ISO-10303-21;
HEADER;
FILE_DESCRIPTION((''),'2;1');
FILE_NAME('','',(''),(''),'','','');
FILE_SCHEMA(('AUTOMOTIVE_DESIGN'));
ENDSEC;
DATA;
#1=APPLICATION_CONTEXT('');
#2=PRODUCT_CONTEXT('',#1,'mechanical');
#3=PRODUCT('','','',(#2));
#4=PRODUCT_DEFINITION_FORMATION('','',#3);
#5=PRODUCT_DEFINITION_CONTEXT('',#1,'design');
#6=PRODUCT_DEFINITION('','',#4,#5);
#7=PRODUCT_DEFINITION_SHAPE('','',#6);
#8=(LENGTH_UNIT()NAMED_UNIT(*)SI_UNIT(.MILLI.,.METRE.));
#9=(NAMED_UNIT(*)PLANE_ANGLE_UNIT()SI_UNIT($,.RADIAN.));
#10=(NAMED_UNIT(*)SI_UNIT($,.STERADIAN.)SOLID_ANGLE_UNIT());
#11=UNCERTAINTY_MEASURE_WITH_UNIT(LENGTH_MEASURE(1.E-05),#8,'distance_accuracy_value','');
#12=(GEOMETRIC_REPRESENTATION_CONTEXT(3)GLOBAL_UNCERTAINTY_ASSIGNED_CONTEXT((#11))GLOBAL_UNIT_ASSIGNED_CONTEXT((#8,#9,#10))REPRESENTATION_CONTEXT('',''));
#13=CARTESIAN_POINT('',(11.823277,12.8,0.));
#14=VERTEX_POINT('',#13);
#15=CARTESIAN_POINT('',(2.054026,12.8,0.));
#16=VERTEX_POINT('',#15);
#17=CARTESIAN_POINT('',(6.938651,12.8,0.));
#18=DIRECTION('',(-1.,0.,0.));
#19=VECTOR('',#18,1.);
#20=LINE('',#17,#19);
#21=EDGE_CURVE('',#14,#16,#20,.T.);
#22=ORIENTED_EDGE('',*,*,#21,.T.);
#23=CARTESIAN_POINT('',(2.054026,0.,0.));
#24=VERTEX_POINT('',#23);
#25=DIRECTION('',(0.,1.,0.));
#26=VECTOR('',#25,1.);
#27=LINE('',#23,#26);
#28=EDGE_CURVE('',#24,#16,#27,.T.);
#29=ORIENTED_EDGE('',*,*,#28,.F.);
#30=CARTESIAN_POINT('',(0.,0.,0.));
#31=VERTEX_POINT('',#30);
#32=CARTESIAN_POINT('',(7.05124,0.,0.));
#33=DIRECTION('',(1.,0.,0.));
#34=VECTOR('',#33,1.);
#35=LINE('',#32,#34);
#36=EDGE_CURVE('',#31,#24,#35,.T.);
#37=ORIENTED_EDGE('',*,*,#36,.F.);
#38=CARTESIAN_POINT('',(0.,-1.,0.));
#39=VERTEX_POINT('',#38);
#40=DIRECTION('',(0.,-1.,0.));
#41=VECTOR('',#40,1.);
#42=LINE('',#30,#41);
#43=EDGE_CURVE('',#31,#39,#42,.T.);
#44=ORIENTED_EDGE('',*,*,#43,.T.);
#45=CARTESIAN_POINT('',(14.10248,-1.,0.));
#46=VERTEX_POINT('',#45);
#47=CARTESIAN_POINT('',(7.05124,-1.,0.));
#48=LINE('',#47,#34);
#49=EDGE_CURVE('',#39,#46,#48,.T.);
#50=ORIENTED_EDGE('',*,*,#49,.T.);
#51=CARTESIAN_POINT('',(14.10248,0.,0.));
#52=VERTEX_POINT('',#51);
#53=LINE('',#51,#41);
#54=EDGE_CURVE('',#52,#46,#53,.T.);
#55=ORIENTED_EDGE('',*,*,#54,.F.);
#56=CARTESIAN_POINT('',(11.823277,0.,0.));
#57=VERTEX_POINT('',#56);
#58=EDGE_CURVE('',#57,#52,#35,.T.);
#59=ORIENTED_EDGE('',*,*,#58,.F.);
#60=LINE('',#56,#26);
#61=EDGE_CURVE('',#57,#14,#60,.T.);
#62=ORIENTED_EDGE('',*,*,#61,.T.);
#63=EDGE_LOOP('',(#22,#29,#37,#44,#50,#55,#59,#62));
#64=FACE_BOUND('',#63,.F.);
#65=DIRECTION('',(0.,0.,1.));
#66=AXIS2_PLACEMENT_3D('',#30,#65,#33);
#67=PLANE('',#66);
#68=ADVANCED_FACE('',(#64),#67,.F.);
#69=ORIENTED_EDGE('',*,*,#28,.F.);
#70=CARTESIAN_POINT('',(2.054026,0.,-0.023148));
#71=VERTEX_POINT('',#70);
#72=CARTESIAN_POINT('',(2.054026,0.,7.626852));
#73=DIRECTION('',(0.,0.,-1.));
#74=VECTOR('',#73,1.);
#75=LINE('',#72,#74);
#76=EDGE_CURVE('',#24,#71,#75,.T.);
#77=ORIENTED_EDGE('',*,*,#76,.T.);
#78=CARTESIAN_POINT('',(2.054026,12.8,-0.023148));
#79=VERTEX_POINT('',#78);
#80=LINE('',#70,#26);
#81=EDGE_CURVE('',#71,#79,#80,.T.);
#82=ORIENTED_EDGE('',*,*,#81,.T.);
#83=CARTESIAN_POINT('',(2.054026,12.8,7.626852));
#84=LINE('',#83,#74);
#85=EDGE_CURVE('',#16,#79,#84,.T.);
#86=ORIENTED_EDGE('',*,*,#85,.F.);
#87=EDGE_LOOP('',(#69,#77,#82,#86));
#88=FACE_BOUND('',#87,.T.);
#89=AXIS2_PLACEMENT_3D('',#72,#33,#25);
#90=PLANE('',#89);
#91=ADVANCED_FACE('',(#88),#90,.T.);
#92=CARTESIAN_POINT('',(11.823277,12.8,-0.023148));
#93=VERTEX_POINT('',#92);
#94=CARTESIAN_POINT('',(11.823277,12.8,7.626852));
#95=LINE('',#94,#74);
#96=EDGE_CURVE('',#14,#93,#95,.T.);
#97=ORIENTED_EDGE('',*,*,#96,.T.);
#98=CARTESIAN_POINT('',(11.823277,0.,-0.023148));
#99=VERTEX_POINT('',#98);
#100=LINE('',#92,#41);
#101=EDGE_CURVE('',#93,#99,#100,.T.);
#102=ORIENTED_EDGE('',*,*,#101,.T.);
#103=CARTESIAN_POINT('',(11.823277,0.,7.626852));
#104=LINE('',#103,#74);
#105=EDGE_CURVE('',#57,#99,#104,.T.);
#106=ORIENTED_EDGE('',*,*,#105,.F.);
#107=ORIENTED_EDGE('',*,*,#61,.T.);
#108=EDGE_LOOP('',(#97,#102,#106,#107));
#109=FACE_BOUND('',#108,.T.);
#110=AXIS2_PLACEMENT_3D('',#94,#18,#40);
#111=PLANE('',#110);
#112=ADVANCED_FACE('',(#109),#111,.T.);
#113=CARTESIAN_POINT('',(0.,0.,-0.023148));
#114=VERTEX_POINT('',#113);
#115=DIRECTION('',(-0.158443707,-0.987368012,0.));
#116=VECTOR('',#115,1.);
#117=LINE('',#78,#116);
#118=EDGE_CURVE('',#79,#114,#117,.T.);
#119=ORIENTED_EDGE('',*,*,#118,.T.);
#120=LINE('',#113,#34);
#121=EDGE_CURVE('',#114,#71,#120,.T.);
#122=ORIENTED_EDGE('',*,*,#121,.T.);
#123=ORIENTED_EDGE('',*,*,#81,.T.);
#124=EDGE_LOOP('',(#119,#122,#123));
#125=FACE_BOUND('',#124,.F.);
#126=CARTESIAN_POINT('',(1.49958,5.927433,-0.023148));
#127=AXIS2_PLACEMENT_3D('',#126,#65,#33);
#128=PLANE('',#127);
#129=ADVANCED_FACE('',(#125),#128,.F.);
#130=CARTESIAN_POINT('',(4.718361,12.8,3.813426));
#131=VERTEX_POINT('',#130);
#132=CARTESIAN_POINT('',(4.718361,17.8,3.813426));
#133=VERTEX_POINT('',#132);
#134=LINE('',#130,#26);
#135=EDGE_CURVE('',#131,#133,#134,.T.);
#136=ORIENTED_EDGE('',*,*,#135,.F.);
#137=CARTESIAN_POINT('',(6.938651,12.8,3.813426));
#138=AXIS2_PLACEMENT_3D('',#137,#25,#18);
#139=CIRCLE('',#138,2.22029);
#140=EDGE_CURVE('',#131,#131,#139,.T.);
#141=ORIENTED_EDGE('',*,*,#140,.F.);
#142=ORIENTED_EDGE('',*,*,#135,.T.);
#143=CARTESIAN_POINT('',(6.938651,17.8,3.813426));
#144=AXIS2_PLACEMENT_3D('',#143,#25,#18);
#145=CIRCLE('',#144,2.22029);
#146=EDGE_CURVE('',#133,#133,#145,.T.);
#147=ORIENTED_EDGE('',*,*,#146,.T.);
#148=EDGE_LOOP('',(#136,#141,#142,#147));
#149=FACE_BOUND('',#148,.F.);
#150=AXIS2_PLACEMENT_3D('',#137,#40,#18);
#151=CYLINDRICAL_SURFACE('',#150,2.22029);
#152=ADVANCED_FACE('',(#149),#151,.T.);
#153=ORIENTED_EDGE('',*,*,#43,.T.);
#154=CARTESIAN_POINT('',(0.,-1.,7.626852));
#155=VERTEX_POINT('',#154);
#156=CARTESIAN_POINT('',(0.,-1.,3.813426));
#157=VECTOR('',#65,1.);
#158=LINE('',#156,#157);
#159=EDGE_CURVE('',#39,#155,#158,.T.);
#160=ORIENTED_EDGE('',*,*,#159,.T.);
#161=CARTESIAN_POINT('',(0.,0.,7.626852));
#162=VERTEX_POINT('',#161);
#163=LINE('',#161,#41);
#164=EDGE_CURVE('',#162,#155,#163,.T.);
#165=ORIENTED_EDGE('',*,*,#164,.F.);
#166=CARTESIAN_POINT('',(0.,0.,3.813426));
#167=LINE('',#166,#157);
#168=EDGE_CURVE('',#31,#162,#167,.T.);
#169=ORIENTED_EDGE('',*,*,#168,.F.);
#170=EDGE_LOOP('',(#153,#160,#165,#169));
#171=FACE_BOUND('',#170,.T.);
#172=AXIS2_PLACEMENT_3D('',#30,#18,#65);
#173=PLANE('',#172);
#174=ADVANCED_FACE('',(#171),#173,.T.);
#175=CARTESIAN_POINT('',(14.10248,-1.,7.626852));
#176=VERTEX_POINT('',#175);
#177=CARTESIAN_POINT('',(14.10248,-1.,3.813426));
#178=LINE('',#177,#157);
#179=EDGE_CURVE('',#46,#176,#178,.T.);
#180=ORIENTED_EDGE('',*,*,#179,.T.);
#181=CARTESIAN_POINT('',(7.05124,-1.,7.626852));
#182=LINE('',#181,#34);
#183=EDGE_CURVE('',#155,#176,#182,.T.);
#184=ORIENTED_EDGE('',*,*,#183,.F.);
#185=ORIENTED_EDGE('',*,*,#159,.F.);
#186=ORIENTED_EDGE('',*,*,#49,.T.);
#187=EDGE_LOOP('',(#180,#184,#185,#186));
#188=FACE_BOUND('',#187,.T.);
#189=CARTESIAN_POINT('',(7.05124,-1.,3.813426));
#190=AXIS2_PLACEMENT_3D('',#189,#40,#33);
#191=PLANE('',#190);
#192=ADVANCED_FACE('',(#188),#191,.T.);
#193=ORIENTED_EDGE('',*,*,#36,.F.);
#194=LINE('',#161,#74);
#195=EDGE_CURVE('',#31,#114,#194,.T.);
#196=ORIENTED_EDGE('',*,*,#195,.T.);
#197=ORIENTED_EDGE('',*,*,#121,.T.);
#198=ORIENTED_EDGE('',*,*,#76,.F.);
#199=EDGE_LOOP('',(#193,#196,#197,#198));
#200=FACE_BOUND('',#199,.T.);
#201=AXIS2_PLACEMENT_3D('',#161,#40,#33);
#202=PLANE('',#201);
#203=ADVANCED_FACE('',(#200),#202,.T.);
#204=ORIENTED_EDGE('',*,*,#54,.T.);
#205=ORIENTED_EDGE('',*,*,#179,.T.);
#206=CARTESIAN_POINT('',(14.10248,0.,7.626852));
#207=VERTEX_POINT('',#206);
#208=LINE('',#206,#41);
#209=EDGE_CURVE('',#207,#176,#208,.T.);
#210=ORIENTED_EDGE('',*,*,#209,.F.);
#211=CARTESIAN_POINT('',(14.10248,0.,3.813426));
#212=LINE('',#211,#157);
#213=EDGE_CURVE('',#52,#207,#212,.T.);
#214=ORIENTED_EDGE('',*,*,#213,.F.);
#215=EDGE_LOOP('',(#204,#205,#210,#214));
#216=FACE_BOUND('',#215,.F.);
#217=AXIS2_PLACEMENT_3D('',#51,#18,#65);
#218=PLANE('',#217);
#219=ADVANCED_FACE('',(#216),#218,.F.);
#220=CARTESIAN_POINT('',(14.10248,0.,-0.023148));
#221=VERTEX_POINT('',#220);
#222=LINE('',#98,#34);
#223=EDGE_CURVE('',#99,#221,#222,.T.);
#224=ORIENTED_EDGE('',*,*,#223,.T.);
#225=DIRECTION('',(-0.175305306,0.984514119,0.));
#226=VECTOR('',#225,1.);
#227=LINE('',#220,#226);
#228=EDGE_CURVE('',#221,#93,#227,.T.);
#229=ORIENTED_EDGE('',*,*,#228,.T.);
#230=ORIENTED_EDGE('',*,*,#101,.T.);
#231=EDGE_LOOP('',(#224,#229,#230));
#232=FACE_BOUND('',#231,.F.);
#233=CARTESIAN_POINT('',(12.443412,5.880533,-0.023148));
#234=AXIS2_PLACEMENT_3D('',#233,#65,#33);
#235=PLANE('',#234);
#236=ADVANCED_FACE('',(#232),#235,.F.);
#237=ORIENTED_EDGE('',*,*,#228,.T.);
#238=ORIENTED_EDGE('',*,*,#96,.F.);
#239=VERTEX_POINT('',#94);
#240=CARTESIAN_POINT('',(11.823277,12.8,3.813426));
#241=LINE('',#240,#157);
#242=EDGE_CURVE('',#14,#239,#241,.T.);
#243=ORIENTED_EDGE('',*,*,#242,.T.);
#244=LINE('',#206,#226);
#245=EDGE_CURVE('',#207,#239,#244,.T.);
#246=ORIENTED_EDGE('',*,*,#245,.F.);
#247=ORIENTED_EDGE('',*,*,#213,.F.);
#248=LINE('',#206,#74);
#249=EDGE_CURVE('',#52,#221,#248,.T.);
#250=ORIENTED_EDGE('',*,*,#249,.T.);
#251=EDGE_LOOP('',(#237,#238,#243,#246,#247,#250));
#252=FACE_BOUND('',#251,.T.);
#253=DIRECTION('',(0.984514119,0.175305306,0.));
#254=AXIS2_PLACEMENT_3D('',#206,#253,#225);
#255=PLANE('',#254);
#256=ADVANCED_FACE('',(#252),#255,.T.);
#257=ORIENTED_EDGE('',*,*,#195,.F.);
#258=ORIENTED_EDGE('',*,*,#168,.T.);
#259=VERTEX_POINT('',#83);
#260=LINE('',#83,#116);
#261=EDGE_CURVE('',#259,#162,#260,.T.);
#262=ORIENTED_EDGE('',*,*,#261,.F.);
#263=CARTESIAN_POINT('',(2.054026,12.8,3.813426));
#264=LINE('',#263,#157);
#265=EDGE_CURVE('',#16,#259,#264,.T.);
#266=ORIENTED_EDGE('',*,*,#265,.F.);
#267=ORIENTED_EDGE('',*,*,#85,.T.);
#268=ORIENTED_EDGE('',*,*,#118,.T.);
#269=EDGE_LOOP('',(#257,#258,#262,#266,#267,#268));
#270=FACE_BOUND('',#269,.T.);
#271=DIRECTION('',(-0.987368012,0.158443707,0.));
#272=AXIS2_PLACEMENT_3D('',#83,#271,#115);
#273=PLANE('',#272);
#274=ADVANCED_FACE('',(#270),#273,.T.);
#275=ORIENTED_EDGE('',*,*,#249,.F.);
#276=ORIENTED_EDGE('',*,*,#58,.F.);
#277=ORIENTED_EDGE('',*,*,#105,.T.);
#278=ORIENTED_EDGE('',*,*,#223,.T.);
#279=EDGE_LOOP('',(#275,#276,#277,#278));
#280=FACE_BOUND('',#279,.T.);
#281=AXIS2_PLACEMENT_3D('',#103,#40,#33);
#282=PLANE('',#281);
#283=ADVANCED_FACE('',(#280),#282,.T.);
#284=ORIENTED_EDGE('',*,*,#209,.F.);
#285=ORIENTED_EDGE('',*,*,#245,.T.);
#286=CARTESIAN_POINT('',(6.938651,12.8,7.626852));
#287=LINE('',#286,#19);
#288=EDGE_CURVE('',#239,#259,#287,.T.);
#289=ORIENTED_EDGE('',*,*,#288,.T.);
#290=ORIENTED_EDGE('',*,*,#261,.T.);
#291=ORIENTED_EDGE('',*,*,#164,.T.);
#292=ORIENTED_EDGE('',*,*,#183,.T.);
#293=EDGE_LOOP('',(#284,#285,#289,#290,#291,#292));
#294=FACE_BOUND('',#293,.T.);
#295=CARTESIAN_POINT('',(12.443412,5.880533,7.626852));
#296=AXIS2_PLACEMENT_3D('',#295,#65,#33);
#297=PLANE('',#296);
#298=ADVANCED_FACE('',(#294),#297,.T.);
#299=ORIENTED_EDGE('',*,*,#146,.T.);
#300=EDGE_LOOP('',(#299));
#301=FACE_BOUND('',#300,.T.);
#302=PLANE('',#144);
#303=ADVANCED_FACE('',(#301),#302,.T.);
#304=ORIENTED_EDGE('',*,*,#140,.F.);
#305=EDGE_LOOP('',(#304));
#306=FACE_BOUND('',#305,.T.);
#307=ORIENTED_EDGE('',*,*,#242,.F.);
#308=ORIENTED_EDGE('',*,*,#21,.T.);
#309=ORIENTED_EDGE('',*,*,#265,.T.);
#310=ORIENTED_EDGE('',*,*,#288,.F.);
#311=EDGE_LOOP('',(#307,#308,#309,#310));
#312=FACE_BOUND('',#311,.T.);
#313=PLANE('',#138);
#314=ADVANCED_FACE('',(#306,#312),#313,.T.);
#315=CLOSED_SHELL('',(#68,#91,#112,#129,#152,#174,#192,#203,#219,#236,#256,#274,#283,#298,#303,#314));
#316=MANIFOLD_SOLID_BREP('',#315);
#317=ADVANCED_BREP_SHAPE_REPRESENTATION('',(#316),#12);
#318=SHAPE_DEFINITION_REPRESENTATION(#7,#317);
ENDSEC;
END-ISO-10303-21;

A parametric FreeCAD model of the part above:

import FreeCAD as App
import Part
import Sketcher
Q = App.Units.Quantity


def add_polygon(sketch, points):
    """Adds a closed chain of lines whose ends are joined by coincident constraints."""
    first, n = sketch.GeometryCount, len(points)
    for a, b in zip(points, points[1:] + points[:1]):
        sketch.addGeometry(Part.LineSegment(App.Vector(*a, 0), App.Vector(*b, 0)), False)
    for i in range(n):
        sketch.addConstraint(Sketcher.Constraint("Coincident", first + i, 2, first + (i + 1) % n, 1))

doc = App.newDocument("Part")
body = doc.addObject("PartDesign::Body", "Body")

# Sketch on XZ plane
sketch1 = body.newObject("Sketcher::SketchObject", "Sketch")
sketch1.AttachmentSupport = (doc.getObject("XZ_Plane"), [""])
sketch1.MapMode = "FlatFace"
add_polygon(sketch1, [(0, 8), (0, 0), (14, 0), (14, 8)])  # lines 0-3
sketch1.addConstraint([
    Sketcher.Constraint("Vertical", 0),
    Sketcher.Constraint("Horizontal", 1),
    Sketcher.Constraint("Vertical", 2),
    Sketcher.Constraint("Horizontal", 3),
    Sketcher.Constraint("Coincident", 0, 2, -1, 1),
    Sketcher.Constraint("DistanceX", 1, 1, 1, 2, Q("14.10248 mm")),
    Sketcher.Constraint("DistanceY", 0, 2, 0, 1, Q("7.626852 mm")),
])
pad1 = body.newObject("PartDesign::Pad", "Pad")
pad1.Profile = sketch1
pad1.Length = 1

# Sketch on XZ plane
sketch2 = body.newObject("Sketcher::SketchObject", "Sketch001")
sketch2.AttachmentSupport = (doc.getObject("XZ_Plane"), [""])
sketch2.MapMode = "FlatFace"
add_polygon(sketch2, [(12, 8), (12, 0), (2, 0), (2, 8)])  # lines 0-3
sketch2.addConstraint([
    Sketcher.Constraint("Vertical", 0),
    Sketcher.Constraint("Horizontal", 1),
    Sketcher.Constraint("Vertical", 2),
    Sketcher.Constraint("Horizontal", 3),
    Sketcher.Constraint("PointOnObject", 0, 2, -1),
    Sketcher.Constraint("DistanceX", 1, 2, 1, 1, Q("9.769251 mm")),
    Sketcher.Constraint("DistanceY", 0, 2, 0, 1, Q("7.626852 mm")),
    Sketcher.Constraint("DistanceX", -1, 1, 0, 2, Q("11.823277 mm")),
])
pad2 = body.newObject("PartDesign::Pad", "Pad001")
pad2.Profile = sketch2
pad2.Length = 12.8
pad2.Reversed = True

# Sketch on XY plane
sketch3 = body.newObject("Sketcher::SketchObject", "Sketch002")
sketch3.AttachmentSupport = (doc.getObject("XY_Plane"), [""])
sketch3.MapMode = "FlatFace"
sketch3.AttachmentOffset = App.Placement(App.Vector(0, 0, 7.626852), App.Rotation())
add_polygon(sketch3, [(11.8, 0), (14.1, 0), (11.8, 12.8)])  # lines 0-2
add_polygon(sketch3, [(2.1, 0), (2.1, 12.8), (0, 0)])  # lines 3-5
sketch3.addConstraint([
    Sketcher.Constraint("Horizontal", 0),
    Sketcher.Constraint("Vertical", 2),
    Sketcher.Constraint("Vertical", 3),
    Sketcher.Constraint("Horizontal", 5),
    Sketcher.Constraint("Coincident", 4, 2, -1, 1),
    Sketcher.Constraint("PointOnObject", 0, 2, -1),
    Sketcher.Constraint("Horizontal", 1, 2, 3, 2),
    Sketcher.Constraint("DistanceY", 2, 2, 2, 1, Q("12.8 mm")),
    Sketcher.Constraint("Distance", 4, Q("12.963758 mm")),
    Sketcher.Constraint("DistanceX", 0, 1, 0, 2, Q("2.279203 mm")),
    Sketcher.Constraint("DistanceX", -1, 1, 0, 2, Q("14.10248 mm")),
])
pad3 = body.newObject("PartDesign::Pad", "Pad002")
pad3.Profile = sketch3
pad3.Length = 7.65
pad3.Reversed = True

# Sketch on XZ plane
sketch4 = body.newObject("Sketcher::SketchObject", "Sketch003")
sketch4.AttachmentSupport = (doc.getObject("XZ_Plane"), [""])
sketch4.MapMode = "FlatFace"
sketch4.AttachmentOffset = App.Placement(App.Vector(0, 0, -12.8), App.Rotation())
sketch4.addGeometry(Part.Circle(App.Vector(6.9, 3.8, 0), App.Vector(0, 0, 1), 2.2), False)
sketch4.addConstraint([
    Sketcher.Constraint("Diameter", 0, Q("4.44058 mm")),
    Sketcher.Constraint("DistanceX", -1, 1, 0, 3, Q("6.938651 mm")),
    Sketcher.Constraint("DistanceY", -1, 1, 0, 3, Q("3.813426 mm")),
])
pad4 = body.newObject("PartDesign::Pad", "Pad003")
pad4.Profile = sketch4
pad4.Length = 5
pad4.Reversed = True

doc.recompute()
